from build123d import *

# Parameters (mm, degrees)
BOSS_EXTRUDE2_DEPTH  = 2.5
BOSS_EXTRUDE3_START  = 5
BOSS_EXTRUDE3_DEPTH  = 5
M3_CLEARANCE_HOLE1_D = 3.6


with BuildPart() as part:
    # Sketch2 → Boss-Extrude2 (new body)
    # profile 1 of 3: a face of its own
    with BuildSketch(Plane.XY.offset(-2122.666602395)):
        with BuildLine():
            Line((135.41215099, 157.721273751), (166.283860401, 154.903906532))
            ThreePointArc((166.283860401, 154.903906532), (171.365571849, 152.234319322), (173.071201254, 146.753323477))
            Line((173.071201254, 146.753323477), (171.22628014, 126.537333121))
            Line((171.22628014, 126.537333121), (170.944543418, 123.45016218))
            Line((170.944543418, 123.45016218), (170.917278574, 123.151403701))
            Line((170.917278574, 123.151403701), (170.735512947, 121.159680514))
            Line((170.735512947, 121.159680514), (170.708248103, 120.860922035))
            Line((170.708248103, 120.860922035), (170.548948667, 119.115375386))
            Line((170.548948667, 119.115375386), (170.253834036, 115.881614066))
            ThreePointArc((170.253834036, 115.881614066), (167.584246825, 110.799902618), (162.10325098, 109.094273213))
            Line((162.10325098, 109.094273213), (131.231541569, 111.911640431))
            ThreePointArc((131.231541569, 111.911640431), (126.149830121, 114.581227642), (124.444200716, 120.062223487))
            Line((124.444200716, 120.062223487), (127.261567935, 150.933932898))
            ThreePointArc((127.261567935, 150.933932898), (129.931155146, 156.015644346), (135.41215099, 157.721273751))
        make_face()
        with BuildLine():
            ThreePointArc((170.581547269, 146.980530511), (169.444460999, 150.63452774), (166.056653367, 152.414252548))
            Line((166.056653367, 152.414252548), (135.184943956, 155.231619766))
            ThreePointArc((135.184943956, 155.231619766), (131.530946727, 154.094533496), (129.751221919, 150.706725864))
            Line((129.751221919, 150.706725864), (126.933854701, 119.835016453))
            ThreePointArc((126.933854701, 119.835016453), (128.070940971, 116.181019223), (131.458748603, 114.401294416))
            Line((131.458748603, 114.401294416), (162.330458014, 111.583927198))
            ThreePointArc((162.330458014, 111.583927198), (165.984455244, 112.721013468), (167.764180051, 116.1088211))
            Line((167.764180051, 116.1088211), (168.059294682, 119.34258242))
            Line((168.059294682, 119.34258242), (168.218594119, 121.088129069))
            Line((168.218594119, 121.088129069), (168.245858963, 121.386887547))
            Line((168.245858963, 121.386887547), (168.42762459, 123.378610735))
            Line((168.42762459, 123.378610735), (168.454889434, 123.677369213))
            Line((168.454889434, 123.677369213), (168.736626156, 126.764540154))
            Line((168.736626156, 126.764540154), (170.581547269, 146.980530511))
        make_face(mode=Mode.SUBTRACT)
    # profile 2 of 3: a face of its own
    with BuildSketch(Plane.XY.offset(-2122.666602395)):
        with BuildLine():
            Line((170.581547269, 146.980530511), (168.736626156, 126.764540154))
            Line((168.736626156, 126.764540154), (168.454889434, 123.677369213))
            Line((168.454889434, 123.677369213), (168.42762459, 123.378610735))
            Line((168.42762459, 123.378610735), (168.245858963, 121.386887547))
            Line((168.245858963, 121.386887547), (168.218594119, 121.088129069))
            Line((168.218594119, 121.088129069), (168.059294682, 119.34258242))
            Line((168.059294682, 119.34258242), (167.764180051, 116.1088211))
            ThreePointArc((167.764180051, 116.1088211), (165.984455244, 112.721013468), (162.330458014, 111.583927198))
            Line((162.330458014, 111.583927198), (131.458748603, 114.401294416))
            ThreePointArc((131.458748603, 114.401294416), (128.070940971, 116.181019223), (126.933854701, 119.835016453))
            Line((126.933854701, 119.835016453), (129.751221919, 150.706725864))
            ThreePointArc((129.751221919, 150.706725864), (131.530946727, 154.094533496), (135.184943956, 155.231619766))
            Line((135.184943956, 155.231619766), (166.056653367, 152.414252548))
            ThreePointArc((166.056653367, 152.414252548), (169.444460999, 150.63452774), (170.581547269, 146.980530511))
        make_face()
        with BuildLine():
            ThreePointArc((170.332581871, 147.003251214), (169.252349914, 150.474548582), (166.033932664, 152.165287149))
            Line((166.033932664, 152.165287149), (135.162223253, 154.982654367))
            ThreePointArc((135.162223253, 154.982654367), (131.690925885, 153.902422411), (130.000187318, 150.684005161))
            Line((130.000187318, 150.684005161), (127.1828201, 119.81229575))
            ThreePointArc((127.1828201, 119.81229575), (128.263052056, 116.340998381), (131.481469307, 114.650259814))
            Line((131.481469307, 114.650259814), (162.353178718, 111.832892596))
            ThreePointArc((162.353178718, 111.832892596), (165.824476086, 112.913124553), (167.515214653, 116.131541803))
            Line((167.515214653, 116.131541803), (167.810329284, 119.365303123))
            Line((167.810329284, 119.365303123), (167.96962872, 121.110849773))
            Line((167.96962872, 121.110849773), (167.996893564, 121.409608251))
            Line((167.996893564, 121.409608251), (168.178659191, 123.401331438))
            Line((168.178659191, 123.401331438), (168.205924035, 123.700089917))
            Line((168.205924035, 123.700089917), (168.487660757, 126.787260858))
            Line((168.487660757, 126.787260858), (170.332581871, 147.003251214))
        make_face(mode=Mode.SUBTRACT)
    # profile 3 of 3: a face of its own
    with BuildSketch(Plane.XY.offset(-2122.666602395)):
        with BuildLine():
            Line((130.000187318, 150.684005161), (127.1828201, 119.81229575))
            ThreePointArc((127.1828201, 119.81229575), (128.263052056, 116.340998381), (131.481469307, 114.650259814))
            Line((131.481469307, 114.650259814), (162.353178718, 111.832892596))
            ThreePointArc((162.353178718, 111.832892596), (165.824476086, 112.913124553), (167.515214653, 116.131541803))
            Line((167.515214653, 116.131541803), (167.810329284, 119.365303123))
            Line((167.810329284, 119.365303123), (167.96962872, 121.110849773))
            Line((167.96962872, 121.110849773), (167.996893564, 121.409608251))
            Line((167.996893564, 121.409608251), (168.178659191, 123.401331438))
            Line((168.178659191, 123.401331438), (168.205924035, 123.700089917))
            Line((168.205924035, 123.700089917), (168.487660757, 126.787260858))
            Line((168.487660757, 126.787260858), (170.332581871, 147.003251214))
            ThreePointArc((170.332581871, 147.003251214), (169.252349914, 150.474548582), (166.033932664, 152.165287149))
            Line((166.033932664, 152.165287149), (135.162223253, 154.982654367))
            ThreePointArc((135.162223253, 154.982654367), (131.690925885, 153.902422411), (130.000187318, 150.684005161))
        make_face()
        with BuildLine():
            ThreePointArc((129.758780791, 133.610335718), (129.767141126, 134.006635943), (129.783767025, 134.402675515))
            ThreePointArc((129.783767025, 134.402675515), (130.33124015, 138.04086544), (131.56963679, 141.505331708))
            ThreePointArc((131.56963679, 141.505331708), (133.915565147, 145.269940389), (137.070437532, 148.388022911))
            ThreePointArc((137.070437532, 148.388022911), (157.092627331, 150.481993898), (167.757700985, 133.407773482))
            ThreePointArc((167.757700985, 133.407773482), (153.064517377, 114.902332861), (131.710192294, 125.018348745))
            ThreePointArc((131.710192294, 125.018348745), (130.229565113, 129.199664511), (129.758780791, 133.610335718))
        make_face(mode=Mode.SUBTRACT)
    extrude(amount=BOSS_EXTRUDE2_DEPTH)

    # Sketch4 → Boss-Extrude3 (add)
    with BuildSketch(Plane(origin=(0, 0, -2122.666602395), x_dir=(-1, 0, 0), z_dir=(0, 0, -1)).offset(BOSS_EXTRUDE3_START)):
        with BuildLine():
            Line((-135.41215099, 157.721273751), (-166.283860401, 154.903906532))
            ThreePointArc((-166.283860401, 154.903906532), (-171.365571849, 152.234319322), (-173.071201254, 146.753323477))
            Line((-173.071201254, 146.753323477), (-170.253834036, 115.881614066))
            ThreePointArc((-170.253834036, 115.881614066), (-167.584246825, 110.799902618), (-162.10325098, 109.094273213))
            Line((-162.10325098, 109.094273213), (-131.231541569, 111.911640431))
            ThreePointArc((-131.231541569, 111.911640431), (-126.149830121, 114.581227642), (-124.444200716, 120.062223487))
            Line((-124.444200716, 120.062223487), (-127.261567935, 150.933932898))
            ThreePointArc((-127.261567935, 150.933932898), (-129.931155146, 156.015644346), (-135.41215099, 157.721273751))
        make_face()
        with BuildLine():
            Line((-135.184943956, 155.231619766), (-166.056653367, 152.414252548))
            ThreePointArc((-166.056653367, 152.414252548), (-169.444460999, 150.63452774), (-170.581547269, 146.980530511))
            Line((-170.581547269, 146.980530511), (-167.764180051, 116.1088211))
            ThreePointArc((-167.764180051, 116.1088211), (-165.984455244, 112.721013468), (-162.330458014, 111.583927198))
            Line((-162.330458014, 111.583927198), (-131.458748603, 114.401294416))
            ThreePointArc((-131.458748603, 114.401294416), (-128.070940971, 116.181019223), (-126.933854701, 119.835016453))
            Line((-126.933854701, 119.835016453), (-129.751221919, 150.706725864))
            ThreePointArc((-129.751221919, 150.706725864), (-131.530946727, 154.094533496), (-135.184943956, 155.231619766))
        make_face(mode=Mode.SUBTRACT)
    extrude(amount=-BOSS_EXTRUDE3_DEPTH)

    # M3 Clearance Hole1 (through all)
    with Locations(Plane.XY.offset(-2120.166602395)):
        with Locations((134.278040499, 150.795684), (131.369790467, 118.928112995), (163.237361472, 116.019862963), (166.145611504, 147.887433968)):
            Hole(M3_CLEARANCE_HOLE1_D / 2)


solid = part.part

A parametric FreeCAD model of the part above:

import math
import FreeCAD as App
import Part
import Sketcher

V = App.Vector

doc = App.newDocument("Part")
params = doc.addObject("Spreadsheet::Sheet", "Params")
for row, (alias, value) in enumerate([
    ("sketch1_radius", "19 mm"),
    ("sketch1_radius2", "7.5 mm"),
    ("sketch1_length", "31 mm"),
    ("sketch1_length2", "2 mm"),
    ("sketch1_length3", "0.3 mm"),
    ("pad1_length", "2.5 mm"),
    ("sketch2_radius", "5 mm"),
    ("sketch2_radius2", "7.5 mm"),
    ("sketch2_length", "31 mm"),
    ("pad2_length", "5 mm"),
    ("sketch3_diameter", "3.6 mm"),
    ("hole_diameter", "3.6 mm"),
], start=1):
    params.set(f"A{row}", alias)
    params.set(f"B{row}", "=" + value)
    params.setAlias(f"B{row}", alias)

body = doc.addObject("PartDesign::Body", "Body")

sketch1 = body.newObject("Sketcher::SketchObject", "Sketch")
sketch1.AttachmentSupport = (doc.getObject("XY_Plane"), [""])
sketch1.MapMode = "FlatFace"
sketch1.AttachmentOffset = App.Placement(V(0, 0, -2122.666602), App.Rotation())
sketch1.addGeometry([
    Part.LineSegment(V(166.28386, 154.903907, 0), V(135.412151, 157.721274, 0)),
    Part.ArcOfCircle(Part.Circle(V(134.73053, 150.252312, 0), V(0, 0, 1), 7.5), math.radians(84.785603), math.radians(174.785603)),
    Part.LineSegment(V(127.261568, 150.933933, 0), V(124.444201, 120.062223, 0)),
    Part.ArcOfCircle(Part.Circle(V(131.913163, 119.380602, 0), V(0, 0, 1), 7.5), math.radians(174.785603), math.radians(264.785603)),
    Part.LineSegment(V(131.231542, 111.91164, 0), V(162.103251, 109.094273, 0)),
    Part.ArcOfCircle(Part.Circle(V(162.784872, 116.563235, 0), V(0, 0, 1), 7.5), math.radians(-95.214397), math.radians(-5.214397)),
    Part.LineSegment(V(170.253834, 115.881614, 0), V(170.548949, 119.115375, 0)),
    Part.LineSegment(V(170.548949, 119.115375, 0), V(170.708248, 120.860922, 0)),
    Part.LineSegment(V(170.708248, 120.860922, 0), V(170.735513, 121.159681, 0)),
    Part.LineSegment(V(170.735513, 121.159681, 0), V(170.917279, 123.151404, 0)),
    Part.LineSegment(V(170.917279, 123.151404, 0), V(170.944543, 123.450162, 0)),
    Part.LineSegment(V(170.944543, 123.450162, 0), V(171.22628, 126.537333, 0)),
    Part.LineSegment(V(171.22628, 126.537333, 0), V(173.071201, 146.753323, 0)),
    Part.ArcOfCircle(Part.Circle(V(165.602239, 147.434945, 0), V(0, 0, 1), 7.5), math.radians(-5.214397), math.radians(84.785603)),
    Part.ArcOfCircle(Part.Circle(V(148.757701, 133.407773, 0), V(0, 0, 1), 19), math.radians(154.774163), math.radians(176.998433)),
    Part.ArcOfCircle(Part.Circle(V(148.757701, 133.407773, 0), V(0, 0, 1), 19), math.radians(127.960577), math.radians(154.774163)),
    Part.ArcOfCircle(Part.Circle(V(148.757701, 133.407773, 0), V(0, 0, 1), 19), math.radians(0), math.radians(127.960577)),
    Part.ArcOfCircle(Part.Circle(V(148.757701, 133.407773, 0), V(0, 0, 1), 19), math.radians(-153.797266), math.radians(0)),
    Part.ArcOfCircle(Part.Circle(V(148.757701, 133.407773, 0), V(0, 0, 1), 19), math.radians(179.389148), math.radians(206.202734)),
    Part.ArcOfCircle(Part.Circle(V(148.757699, 133.407774, 0), V(0, 0, 1), 18.999998), math.radians(176.998433), math.radians(179.389148)),
], False)
sketch1.addConstraint([
    Sketcher.Constraint("Tangent", 0, 2, 1, 1),
    Sketcher.Constraint("Tangent", 1, 2, 2, 1),
    Sketcher.Constraint("Tangent", 2, 2, 3, 1),
    Sketcher.Constraint("Tangent", 3, 2, 4, 1),
    Sketcher.Constraint("Tangent", 4, 2, 5, 1),
    Sketcher.Constraint("Tangent", 5, 2, 6, 1),
    Sketcher.Constraint("Coincident", 6, 2, 7, 1),
    Sketcher.Constraint("Coincident", 7, 2, 8, 1),
    Sketcher.Constraint("Coincident", 8, 2, 9, 1),
    Sketcher.Constraint("Coincident", 9, 2, 10, 1),
    Sketcher.Constraint("Coincident", 10, 2, 11, 1),
    Sketcher.Constraint("Coincident", 11, 2, 12, 1),
    Sketcher.Constraint("Tangent", 12, 2, 13, 1),
    Sketcher.Constraint("Tangent", 13, 2, 0, 1),
    Sketcher.Constraint("Tangent", 14, 1, 15, 2),
    Sketcher.Constraint("Tangent", 15, 1, 16, 2),
    Sketcher.Constraint("Tangent", 16, 1, 17, 2),
    Sketcher.Constraint("Tangent", 17, 1, 18, 2),
    Sketcher.Constraint("Tangent", 18, 1, 19, 2),
    Sketcher.Constraint("Tangent", 19, 1, 14, 2),
    Sketcher.Constraint("Coincident", 16, 3, 14, 3),
    Sketcher.Constraint("Equal", 1, 3),
    Sketcher.Constraint("Equal", 3, 5),
    Sketcher.Constraint("Equal", 5, 13),
    Sketcher.Constraint("Equal", 16, 17),
    Sketcher.Constraint("Perpendicular", 0, 2),
    Sketcher.Constraint("Perpendicular", 2, 4),
    Sketcher.Constraint("Perpendicular", 4, 6),
    Sketcher.Constraint("Parallel", 6, 7),
    Sketcher.Constraint("Parallel", 7, 8),
    Sketcher.Constraint("Parallel", 8, 9),
    Sketcher.Constraint("Parallel", 9, 10),
    Sketcher.Constraint("Parallel", 10, 11),
    Sketcher.Constraint("Parallel", 11, 12),
    Sketcher.Constraint("Horizontal", 19, 3, 16, 1),
    Sketcher.Constraint("Equal", 0, 2),
    Sketcher.Constraint("Equal", 8, 10),
    Sketcher.Constraint("Radius", 14, 19.0),
    Sketcher.Constraint("Radius", 1, 7.5),
    Sketcher.Constraint("Distance", 0, 31.0),
    Sketcher.Constraint("Distance", 9, 2.0),
    Sketcher.Constraint("Distance", 8, 0.3),
    Sketcher.Constraint("Distance", 11, 3.1),
    Sketcher.Constraint("Distance", 12, 20.3),
    Sketcher.Constraint("DistanceX", 9, 2, 11, 2, 0.309002),
    Sketcher.Constraint("Distance", 6, 3.2472),
    Sketcher.Constraint("DistanceX", -1, 1, 14, 3, 148.757701),
    Sketcher.Constraint("DistanceX", -1, 1, 2, 2, 124.444201),
    Sketcher.Constraint("DistanceY", 19, 3, 0, 2, 24.3135),
    Sketcher.Constraint("DistanceY", 14, 1, 1, 2, 9.428601),
    Sketcher.Constraint("DistanceX", 14, 1, 15, 1, 5.500801),
    Sketcher.Constraint("DistanceY", -1, 1, 1, 3, 150.252312),
    Sketcher.Constraint("DistanceY", -1, 1, 17, 1, 125.018349),
    Sketcher.Constraint("DistanceX", -1, 1, 18, 1, 129.758781),
    Sketcher.Constraint("DistanceY", 18, 1, 19, 1, 0.79234),
])
sketch1.setExpression("Constraints[37]", "Params.sketch1_radius")
sketch1.setExpression("Constraints[38]", "Params.sketch1_radius2")
sketch1.setExpression("Constraints[39]", "Params.sketch1_length")
sketch1.setExpression("Constraints[40]", "Params.sketch1_length2")
sketch1.setExpression("Constraints[41]", "Params.sketch1_length3")
pad1 = body.newObject("PartDesign::Pad", "Pad")
pad1.Profile = sketch1
pad1.setExpression("Length", "Params.pad1_length")

sketch2 = body.newObject("Sketcher::SketchObject", "Sketch001")
sketch2.AttachmentSupport = (doc.getObject("XY_Plane"), [""])
sketch2.MapMode = "FlatFace"
sketch2.AttachmentOffset = App.Placement(V(0, 0, -2127.666602), App.Rotation())
sketch2.addGeometry([
    Part.LineSegment(V(135.412151, 157.721274, 0), V(166.28386, 154.903907, 0)),
    Part.ArcOfCircle(Part.Circle(V(165.602239, 147.434945, 0), V(0, 0, 1), 7.5), math.radians(-5.214397), math.radians(84.785603)),
    Part.LineSegment(V(173.071201, 146.753323, 0), V(170.253834, 115.881614, 0)),
    Part.ArcOfCircle(Part.Circle(V(162.784872, 116.563235, 0), V(0, 0, 1), 7.5), math.radians(-95.214397), math.radians(-5.214397)),
    Part.LineSegment(V(162.103251, 109.094273, 0), V(131.231542, 111.91164, 0)),
    Part.ArcOfCircle(Part.Circle(V(131.913163, 119.380602, 0), V(0, 0, 1), 7.5), math.radians(174.785603), math.radians(264.785603)),
    Part.LineSegment(V(124.444201, 120.062223, 0), V(127.261568, 150.933933, 0)),
    Part.ArcOfCircle(Part.Circle(V(134.73053, 150.252312, 0), V(0, 0, 1), 7.5), math.radians(84.785603), math.radians(174.785603)),
    Part.LineSegment(V(166.056653, 152.414253, 0), V(135.184944, 155.23162, 0)),
    Part.ArcOfCircle(Part.Circle(V(134.73053, 150.252312, 0), V(0, 0, 1), 5), math.radians(84.785603), math.radians(174.785603)),
    Part.LineSegment(V(129.751222, 150.706726, 0), V(126.933855, 119.835016, 0)),
    Part.ArcOfCircle(Part.Circle(V(131.913163, 119.380602, 0), V(0, 0, 1), 5), math.radians(174.785603), math.radians(264.785603)),
    Part.LineSegment(V(131.458749, 114.401294, 0), V(162.330458, 111.583927, 0)),
    Part.ArcOfCircle(Part.Circle(V(162.784872, 116.563235, 0), V(0, 0, 1), 5), math.radians(-95.214397), math.radians(-5.214397)),
    Part.LineSegment(V(167.76418, 116.108821, 0), V(170.581547, 146.980531, 0)),
    Part.ArcOfCircle(Part.Circle(V(165.602239, 147.434945, 0), V(0, 0, 1), 5), math.radians(-5.214397), math.radians(84.785603)),
], False)
sketch2.addConstraint([
    Sketcher.Constraint("Tangent", 0, 2, 1, 2),
    Sketcher.Constraint("Tangent", 1, 1, 2, 1),
    Sketcher.Constraint("Tangent", 2, 2, 3, 2),
    Sketcher.Constraint("Tangent", 3, 1, 4, 1),
    Sketcher.Constraint("Tangent", 4, 2, 5, 2),
    Sketcher.Constraint("Tangent", 5, 1, 6, 1),
    Sketcher.Constraint("Tangent", 6, 2, 7, 2),
    Sketcher.Constraint("Tangent", 7, 1, 0, 1),
    Sketcher.Constraint("Tangent", 8, 2, 9, 1),
    Sketcher.Constraint("Tangent", 9, 2, 10, 1),
    Sketcher.Constraint("Tangent", 10, 2, 11, 1),
    Sketcher.Constraint("Tangent", 11, 2, 12, 1),
    Sketcher.Constraint("Tangent", 12, 2, 13, 1),
    Sketcher.Constraint("Tangent", 13, 2, 14, 1),
    Sketcher.Constraint("Tangent", 14, 2, 15, 1),
    Sketcher.Constraint("Tangent", 15, 2, 8, 1),
    Sketcher.Constraint("Coincident", 9, 3, 7, 3),
    Sketcher.Constraint("Coincident", 11, 3, 5, 3),
    Sketcher.Constraint("Coincident", 13, 3, 3, 3),
    Sketcher.Constraint("Coincident", 15, 3, 1, 3),
    Sketcher.Constraint("Equal", 1, 3),
    Sketcher.Constraint("Equal", 3, 5),
    Sketcher.Constraint("Equal", 5, 7),
    Sketcher.Constraint("Equal", 9, 11),
    Sketcher.Constraint("Equal", 11, 13),
    Sketcher.Constraint("Equal", 13, 15),
    Sketcher.Constraint("Perpendicular", 0, 2),
    Sketcher.Constraint("Perpendicular", 2, 4),
    Sketcher.Constraint("Perpendicular", 4, 6),
    Sketcher.Constraint("Equal", 0, 2),
    Sketcher.Constraint("Radius", 9, 5.0),
    Sketcher.Constraint("Radius", 1, 7.5),
    Sketcher.Constraint("Distance", 0, 31.0),
    Sketcher.Constraint("DistanceX", -1, 1, 1, 1, 173.071201),
    Sketcher.Constraint("DistanceX", -1, 1, 5, 1, 124.444201),
    Sketcher.Constraint("DistanceY", -1, 1, 7, 3, 150.252312),
])
sketch2.setExpression("Constraints[30]", "Params.sketch2_radius")
sketch2.setExpression("Constraints[31]", "Params.sketch2_radius2")
sketch2.setExpression("Constraints[32]", "Params.sketch2_length")
pad2 = body.newObject("PartDesign::Pad", "Pad001")
pad2.Profile = sketch2
pad2.setExpression("Length", "Params.pad2_length")

sketch3 = body.newObject("Sketcher::SketchObject", "Sketch002")
sketch3.AttachmentSupport = (doc.getObject("XY_Plane"), [""])
sketch3.MapMode = "FlatFace"
sketch3.AttachmentOffset = App.Placement(V(0, 0, -2120.166602), App.Rotation())
sketch3.addGeometry([
    Part.Circle(V(134.27804, 150.795684, 0), V(0, 0, 1), 1.8),
    Part.Circle(V(131.36979, 118.928113, 0), V(0, 0, 1), 1.8),
    Part.Circle(V(163.237361, 116.019863, 0), V(0, 0, 1), 1.8),
    Part.Circle(V(166.145612, 147.887434, 0), V(0, 0, 1), 1.8),
], False)
sketch3.addConstraint([
    Sketcher.Constraint("Equal", 0, 1),
    Sketcher.Constraint("Equal", 1, 2),
    Sketcher.Constraint("Equal", 2, 3),
    Sketcher.Constraint("Diameter", 0, 3.6),
    Sketcher.Constraint("DistanceX", -1, 1, 0, 3, 134.27804),
    Sketcher.Constraint("DistanceX", -1, 1, 1, 3, 131.36979),
    Sketcher.Constraint("DistanceX", -1, 1, 2, 3, 163.237361),
    Sketcher.Constraint("DistanceX", -1, 1, 3, 3, 166.145612),
    Sketcher.Constraint("DistanceY", 1, 3, 0, 3, 31.867571),
    Sketcher.Constraint("DistanceY", 2, 3, 1, 3, 2.90825),
    Sketcher.Constraint("DistanceY", 3, 3, 0, 3, 2.90825),
    Sketcher.Constraint("DistanceY", -1, 1, 0, 3, 150.795684),
])
sketch3.setExpression("Constraints[3]", "Params.sketch3_diameter")
doc.recompute()
hole = body.newObject("PartDesign::Hole", "Hole")
hole.Profile = sketch3
hole.ThreadType = "None"
hole.setExpression("Diameter", "Params.hole_diameter")
hole.DepthType = "ThroughAll"

doc.recompute()
